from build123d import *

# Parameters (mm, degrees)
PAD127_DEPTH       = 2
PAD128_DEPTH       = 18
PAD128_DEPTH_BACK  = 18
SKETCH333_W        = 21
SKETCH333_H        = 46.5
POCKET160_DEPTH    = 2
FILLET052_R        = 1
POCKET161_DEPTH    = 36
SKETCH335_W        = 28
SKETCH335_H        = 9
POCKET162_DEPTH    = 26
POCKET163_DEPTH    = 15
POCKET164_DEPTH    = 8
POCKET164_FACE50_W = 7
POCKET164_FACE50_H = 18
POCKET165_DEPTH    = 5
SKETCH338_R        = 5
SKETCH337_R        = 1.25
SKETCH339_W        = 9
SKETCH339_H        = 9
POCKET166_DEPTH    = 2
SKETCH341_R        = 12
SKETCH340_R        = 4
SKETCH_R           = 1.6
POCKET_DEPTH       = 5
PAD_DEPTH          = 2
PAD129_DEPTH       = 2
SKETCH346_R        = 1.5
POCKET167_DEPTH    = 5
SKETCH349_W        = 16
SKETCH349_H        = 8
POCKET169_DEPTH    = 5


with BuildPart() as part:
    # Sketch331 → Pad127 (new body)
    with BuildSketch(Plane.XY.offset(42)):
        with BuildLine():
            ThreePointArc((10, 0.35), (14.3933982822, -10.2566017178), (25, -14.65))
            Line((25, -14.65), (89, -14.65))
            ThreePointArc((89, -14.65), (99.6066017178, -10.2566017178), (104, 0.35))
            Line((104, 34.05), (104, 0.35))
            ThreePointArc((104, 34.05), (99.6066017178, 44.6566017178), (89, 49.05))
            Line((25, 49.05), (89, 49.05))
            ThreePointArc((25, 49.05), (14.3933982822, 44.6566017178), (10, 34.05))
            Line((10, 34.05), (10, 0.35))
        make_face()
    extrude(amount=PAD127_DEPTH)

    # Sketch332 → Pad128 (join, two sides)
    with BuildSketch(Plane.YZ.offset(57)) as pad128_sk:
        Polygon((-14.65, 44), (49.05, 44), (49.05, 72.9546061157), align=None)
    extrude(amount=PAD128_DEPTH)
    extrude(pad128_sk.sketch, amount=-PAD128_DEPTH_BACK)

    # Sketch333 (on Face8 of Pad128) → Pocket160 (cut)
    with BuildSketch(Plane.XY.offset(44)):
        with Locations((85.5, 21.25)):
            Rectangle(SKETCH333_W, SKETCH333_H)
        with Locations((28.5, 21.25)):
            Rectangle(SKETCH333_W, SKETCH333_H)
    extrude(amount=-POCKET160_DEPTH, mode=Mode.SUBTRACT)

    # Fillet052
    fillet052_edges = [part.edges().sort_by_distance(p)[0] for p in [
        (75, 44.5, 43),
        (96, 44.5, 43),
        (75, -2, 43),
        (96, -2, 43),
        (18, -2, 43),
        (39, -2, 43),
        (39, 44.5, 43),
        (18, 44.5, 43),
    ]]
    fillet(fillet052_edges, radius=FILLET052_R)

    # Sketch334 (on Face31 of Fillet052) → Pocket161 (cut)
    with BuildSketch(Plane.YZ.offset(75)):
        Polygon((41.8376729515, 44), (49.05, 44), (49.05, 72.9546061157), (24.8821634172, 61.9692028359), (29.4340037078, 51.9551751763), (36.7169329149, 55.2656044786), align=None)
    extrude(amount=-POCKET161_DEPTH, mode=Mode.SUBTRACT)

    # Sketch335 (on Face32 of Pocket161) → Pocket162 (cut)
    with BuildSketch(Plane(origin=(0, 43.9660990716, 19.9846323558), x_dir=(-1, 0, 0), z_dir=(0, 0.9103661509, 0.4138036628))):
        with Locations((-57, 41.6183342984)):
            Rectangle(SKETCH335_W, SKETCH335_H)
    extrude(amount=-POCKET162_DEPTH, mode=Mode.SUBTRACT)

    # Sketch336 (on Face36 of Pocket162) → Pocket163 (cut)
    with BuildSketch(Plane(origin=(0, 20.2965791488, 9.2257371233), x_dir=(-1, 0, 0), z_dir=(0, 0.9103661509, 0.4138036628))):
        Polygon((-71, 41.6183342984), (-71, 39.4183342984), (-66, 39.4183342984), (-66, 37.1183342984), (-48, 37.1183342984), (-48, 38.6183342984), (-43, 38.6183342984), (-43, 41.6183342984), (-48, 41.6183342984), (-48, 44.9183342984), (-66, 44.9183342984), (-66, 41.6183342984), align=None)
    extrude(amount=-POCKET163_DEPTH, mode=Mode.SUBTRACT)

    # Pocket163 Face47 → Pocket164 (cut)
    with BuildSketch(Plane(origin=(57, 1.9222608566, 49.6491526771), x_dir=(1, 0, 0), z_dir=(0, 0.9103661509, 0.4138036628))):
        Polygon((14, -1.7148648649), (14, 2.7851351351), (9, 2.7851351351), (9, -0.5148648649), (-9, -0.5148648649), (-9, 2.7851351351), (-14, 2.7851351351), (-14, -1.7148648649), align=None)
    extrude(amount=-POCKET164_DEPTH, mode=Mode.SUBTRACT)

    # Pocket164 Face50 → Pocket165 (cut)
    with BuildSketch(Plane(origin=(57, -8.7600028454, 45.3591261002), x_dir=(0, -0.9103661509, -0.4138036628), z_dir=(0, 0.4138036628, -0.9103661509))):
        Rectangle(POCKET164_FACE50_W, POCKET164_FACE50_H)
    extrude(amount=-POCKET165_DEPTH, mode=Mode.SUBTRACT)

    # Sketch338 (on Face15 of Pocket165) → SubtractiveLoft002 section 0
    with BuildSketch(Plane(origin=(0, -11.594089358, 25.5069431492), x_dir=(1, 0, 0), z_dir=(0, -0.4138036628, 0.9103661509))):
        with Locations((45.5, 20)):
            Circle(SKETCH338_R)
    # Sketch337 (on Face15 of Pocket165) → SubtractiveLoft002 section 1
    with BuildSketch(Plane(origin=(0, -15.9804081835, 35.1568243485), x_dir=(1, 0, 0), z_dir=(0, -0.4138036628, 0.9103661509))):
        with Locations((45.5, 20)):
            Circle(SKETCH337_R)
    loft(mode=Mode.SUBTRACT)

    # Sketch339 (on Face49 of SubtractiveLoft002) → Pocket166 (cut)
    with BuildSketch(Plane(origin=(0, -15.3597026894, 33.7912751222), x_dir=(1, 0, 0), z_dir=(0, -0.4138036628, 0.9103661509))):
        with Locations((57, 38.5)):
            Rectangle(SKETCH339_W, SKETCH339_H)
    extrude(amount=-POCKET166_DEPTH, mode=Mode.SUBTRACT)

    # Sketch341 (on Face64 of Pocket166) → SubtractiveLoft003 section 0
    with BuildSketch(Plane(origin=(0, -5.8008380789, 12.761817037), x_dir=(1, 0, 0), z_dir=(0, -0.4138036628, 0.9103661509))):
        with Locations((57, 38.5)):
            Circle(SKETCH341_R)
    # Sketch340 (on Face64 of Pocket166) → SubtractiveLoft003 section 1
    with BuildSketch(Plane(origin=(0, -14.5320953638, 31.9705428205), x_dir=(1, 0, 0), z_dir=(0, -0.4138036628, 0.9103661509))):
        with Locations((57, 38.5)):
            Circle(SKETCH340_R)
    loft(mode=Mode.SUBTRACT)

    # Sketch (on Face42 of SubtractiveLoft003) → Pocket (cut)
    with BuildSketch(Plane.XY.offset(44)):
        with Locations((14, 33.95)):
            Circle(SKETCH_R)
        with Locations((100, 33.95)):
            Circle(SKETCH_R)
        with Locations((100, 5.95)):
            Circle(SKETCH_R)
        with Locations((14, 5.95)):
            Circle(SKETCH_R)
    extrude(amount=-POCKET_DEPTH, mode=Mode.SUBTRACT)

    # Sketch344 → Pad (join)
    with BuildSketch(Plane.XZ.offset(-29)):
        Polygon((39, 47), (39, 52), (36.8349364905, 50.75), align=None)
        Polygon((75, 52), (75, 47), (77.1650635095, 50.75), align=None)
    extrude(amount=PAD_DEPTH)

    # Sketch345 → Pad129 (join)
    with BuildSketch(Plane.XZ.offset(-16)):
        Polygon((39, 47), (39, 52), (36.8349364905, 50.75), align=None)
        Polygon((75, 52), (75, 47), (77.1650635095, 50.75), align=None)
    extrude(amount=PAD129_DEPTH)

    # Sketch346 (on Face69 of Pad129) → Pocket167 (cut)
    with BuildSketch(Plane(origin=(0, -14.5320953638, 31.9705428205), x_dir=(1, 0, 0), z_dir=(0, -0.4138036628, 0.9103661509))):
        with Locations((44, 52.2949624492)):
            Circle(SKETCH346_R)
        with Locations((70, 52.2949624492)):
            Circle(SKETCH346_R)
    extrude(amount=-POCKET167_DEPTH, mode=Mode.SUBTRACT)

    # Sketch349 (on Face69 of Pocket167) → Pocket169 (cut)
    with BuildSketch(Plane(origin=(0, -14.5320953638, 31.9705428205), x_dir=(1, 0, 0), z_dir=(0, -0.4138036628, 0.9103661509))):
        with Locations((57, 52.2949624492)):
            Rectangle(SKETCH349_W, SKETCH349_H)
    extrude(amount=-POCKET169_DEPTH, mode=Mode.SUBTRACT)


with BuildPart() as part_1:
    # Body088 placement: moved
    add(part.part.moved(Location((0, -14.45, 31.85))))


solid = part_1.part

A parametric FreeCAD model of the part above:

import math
import FreeCAD as App
import Part
import Sketcher

V = App.Vector
Q = App.Units.Quantity


def edges_at(feature, points):
    """Names of the edges that pass closest to the given points."""
    edges = feature.Shape.Edges
    near = lambda p: min(range(len(edges)), key=lambda i: edges[i].distToShape(Part.Vertex(*p))[0])
    return sorted({f"Edge{near(p) + 1}" for p in points})

doc = App.newDocument("Part")
params = doc.addObject("Spreadsheet::Sheet", "Params")
for row, (alias, value) in enumerate([
    ("sketch1_radius", "15 mm"),
    ("sketch1_width", "64 mm"),
    ("sketch1_height", "33.7 mm"),
    ("pad1_length", "2 mm"),
    ("sketch2_width", "63.7 mm"),
    ("pad2_length", "18 mm"),
    ("pad2_length2", "18 mm"),
    ("sketch3_width", "21 mm"),
    ("sketch3_height", "46.5 mm"),
    ("pocket1_length", "2 mm"),
    ("fillet_radius", "1 mm"),
    ("sketch4_length", "11 mm"),
    ("sketch4_length2", "8 mm"),
    ("pocket2_length", "36 mm"),
    ("sketch5_width", "28 mm"),
    ("sketch5_height", "9 mm"),
    ("pocket3_length", "26 mm"),
    ("sketch6_width", "5 mm"),
    ("sketch6_width2", "18 mm"),
    ("sketch6_height", "3 mm"),
    ("sketch6_height2", "2.2 mm"),
    ("sketch6_height3", "2.3 mm"),
    ("pocket4_length", "15 mm"),
    ("sketch7_width", "5 mm"),
    ("sketch7_width2", "18 mm"),
    ("sketch7_height", "4.5 mm"),
    ("sketch7_height2", "3.3 mm"),
    ("pocket5_length", "8 mm"),
    ("sketch8_width", "7 mm"),
    ("sketch8_height", "18 mm"),
    ("pocket6_length", "5 mm"),
    ("sketch9_diameter", "10 mm"),
    ("sketch10_diameter", "2.5 mm"),
    ("sketch11_width", "9 mm"),
    ("pocket7_length", "2 mm"),
    ("sketch12_diameter", "24 mm"),
    ("sketch13_diameter", "8 mm"),
    ("sketch14_diameter", "3.2 mm"),
    ("pocket8_length", "5 mm"),
    ("sketch15_height", "5 mm"),
    ("pad3_length", "2 mm"),
    ("sketch16_height", "5 mm"),
    ("pad4_length", "2 mm"),
    ("sketch17_diameter", "3 mm"),
    ("pocket9_length", "5 mm"),
    ("sketch18_width", "16 mm"),
    ("sketch18_height", "8 mm"),
    ("pocket10_length", "5 mm"),
], start=1):
    params.set(f"A{row}", alias)
    params.set(f"B{row}", "=" + value)
    params.setAlias(f"B{row}", alias)

body = doc.addObject("PartDesign::Body", "Body")

sketch1 = body.newObject("Sketcher::SketchObject", "Sketch")
sketch1.AttachmentSupport = (doc.getObject("XY_Plane"), [""])
sketch1.MapMode = "FlatFace"
sketch1.AttachmentOffset = App.Placement(V(0, 0, 42), App.Rotation())
sketch1.addGeometry([
    Part.ArcOfCircle(Part.Circle(V(25, 0, 0), V(0, 0, 1), 15), math.radians(180), math.radians(270)),
    Part.LineSegment(V(25, -15, 0), V(89, -15, 0)),
    Part.ArcOfCircle(Part.Circle(V(89, 0, 0), V(0, 0, 1), 15), math.radians(-90), math.radians(0)),
    Part.LineSegment(V(104, 0, 0), V(104, 34, 0)),
    Part.ArcOfCircle(Part.Circle(V(89, 34, 0), V(0, 0, 1), 15), math.radians(0), math.radians(90)),
    Part.LineSegment(V(89, 49, 0), V(25, 49, 0)),
    Part.ArcOfCircle(Part.Circle(V(25, 34, 0), V(0, 0, 1), 15), math.radians(90), math.radians(180)),
    Part.LineSegment(V(10, 34, 0), V(10, 0, 0)),
], False)
sketch1.addConstraint([
    Sketcher.Constraint("Tangent", 0, 2, 1, 1),
    Sketcher.Constraint("Tangent", 1, 2, 2, 1),
    Sketcher.Constraint("Tangent", 2, 2, 3, 1),
    Sketcher.Constraint("Tangent", 3, 2, 4, 1),
    Sketcher.Constraint("Tangent", 4, 2, 5, 1),
    Sketcher.Constraint("Tangent", 5, 2, 6, 1),
    Sketcher.Constraint("Tangent", 6, 2, 7, 1),
    Sketcher.Constraint("Tangent", 7, 2, 0, 1),
    Sketcher.Constraint("Horizontal", 1),
    Sketcher.Constraint("Vertical", 3),
    Sketcher.Constraint("Horizontal", 5),
    Sketcher.Constraint("Vertical", 7),
    Sketcher.Constraint("Equal", 0, 2),
    Sketcher.Constraint("Equal", 2, 4),
    Sketcher.Constraint("Equal", 4, 6),
    Sketcher.Constraint("Radius", 0, 15.0),
    Sketcher.Constraint("DistanceX", 1, 1, 1, 2, 64.0),
    Sketcher.Constraint("DistanceY", 3, 1, 3, 2, 33.7),
    Sketcher.Constraint("DistanceX", -1, 1, 0, 3, 25.0),
    Sketcher.Constraint("DistanceY", -1, 1, 0, 3, 0.35),
])
sketch1.setExpression("Constraints[15]", "Params.sketch1_radius")
sketch1.setExpression("Constraints[16]", "Params.sketch1_width")
sketch1.setExpression("Constraints[17]", "Params.sketch1_height")
pad1 = body.newObject("PartDesign::Pad", "Pad")
pad1.Profile = sketch1
pad1.setExpression("Length", "Params.pad1_length")

sketch2 = body.newObject("Sketcher::SketchObject", "Sketch001")
sketch2.AttachmentSupport = (doc.getObject("YZ_Plane"), [""])
sketch2.MapMode = "FlatFace"
sketch2.AttachmentOffset = App.Placement(V(0, 0, 57), App.Rotation())
sketch2.addGeometry([
    Part.LineSegment(V(-15, 44, 0), V(49, 44, 0)),
    Part.LineSegment(V(49, 44, 0), V(49, 73, 0)),
    Part.LineSegment(V(49, 73, 0), V(-15, 44, 0)),
], False)
sketch2.addConstraint([
    Sketcher.Constraint("Coincident", 0, 2, 1, 1),
    Sketcher.Constraint("Coincident", 1, 2, 2, 1),
    Sketcher.Constraint("Coincident", 2, 2, 0, 1),
    Sketcher.Constraint("Horizontal", 0),
    Sketcher.Constraint("Vertical", 1),
    Sketcher.Constraint("DistanceX", 0, 1, 0, 2, 63.7),
    Sketcher.Constraint("DistanceY", -1, 1, 0, 2, 44.0),
    Sketcher.Constraint("DistanceX", -1, 1, 0, 2, 49.05),
    Sketcher.Constraint("DistanceY", 1, 1, 1, 2, 28.954606),
])
sketch2.setExpression("Constraints[5]", "Params.sketch2_width")
pad2 = body.newObject("PartDesign::Pad", "Pad001")
pad2.Profile = sketch2
pad2.Type = "TwoLengths"
pad2.setExpression("Length", "Params.pad2_length")
pad2.setExpression("Length2", "Params.pad2_length2")

sketch3 = body.newObject("Sketcher::SketchObject", "Sketch002")
sketch3.AttachmentSupport = (doc.getObject("XY_Plane"), [""])
sketch3.MapMode = "FlatFace"
sketch3.AttachmentOffset = App.Placement(V(0, 0, 44), App.Rotation())
sketch3.addGeometry([
    Part.LineSegment(V(75, 44, 0), V(75, -2, 0)),
    Part.LineSegment(V(75, -2, 0), V(96, -2, 0)),
    Part.LineSegment(V(96, -2, 0), V(96, 44, 0)),
    Part.LineSegment(V(96, 44, 0), V(75, 44, 0)),
    Part.LineSegment(V(18, 44, 0), V(18, -2, 0)),
    Part.LineSegment(V(18, -2, 0), V(39, -2, 0)),
    Part.LineSegment(V(39, -2, 0), V(39, 44, 0)),
    Part.LineSegment(V(39, 44, 0), V(18, 44, 0)),
], False)
sketch3.addConstraint([
    Sketcher.Constraint("Coincident", 0, 2, 1, 1),
    Sketcher.Constraint("Coincident", 1, 2, 2, 1),
    Sketcher.Constraint("Coincident", 2, 2, 3, 1),
    Sketcher.Constraint("Coincident", 3, 2, 0, 1),
    Sketcher.Constraint("Coincident", 4, 2, 5, 1),
    Sketcher.Constraint("Coincident", 5, 2, 6, 1),
    Sketcher.Constraint("Coincident", 6, 2, 7, 1),
    Sketcher.Constraint("Coincident", 7, 2, 4, 1),
    Sketcher.Constraint("Vertical", 0),
    Sketcher.Constraint("Horizontal", 1),
    Sketcher.Constraint("Vertical", 2),
    Sketcher.Constraint("Horizontal", 3),
    Sketcher.Constraint("Vertical", 4),
    Sketcher.Constraint("Horizontal", 5),
    Sketcher.Constraint("Vertical", 6),
    Sketcher.Constraint("Horizontal", 7),
    Sketcher.Constraint("Horizontal", 1, 2, 4, 2),
    Sketcher.Constraint("Horizontal", 3, 2, 6, 2),
    Sketcher.Constraint("Equal", 3, 5),
    Sketcher.Constraint("DistanceX", 1, 1, 1, 2, 21.0),
    Sketcher.Constraint("DistanceY", 0, 2, 0, 1, 46.5),
    Sketcher.Constraint("DistanceX", -1, 1, 0, 2, 75.0),
    Sketcher.Constraint("DistanceY", 0, 2, -1, 1, 2.0),
    Sketcher.Constraint("DistanceX", -1, 1, 4, 2, 18.0),
])
sketch3.setExpression("Constraints[19]", "Params.sketch3_width")
sketch3.setExpression("Constraints[20]", "Params.sketch3_height")
pocket1 = body.newObject("PartDesign::Pocket", "Pocket")
pocket1.Profile = sketch3
pocket1.setExpression("Length", "Params.pocket1_length")
doc.recompute()

fillet = body.newObject("PartDesign::Fillet", "Fillet")
fillet.Base = (pocket1, edges_at(pocket1, [
    (75, 44.5, 43),
    (96, 44.5, 43),
    (75, -2, 43),
    (96, -2, 43),
    (18, -2, 43),
    (39, -2, 43),
    (39, 44.5, 43),
    (18, 44.5, 43),
]))
fillet.setExpression("Radius", "Params.fillet_radius")

sketch4 = body.newObject("Sketcher::SketchObject", "Sketch003")
sketch4.AttachmentSupport = (doc.getObject("YZ_Plane"), [""])
sketch4.MapMode = "FlatFace"
sketch4.AttachmentOffset = App.Placement(V(0, 0, 75), App.Rotation())
sketch4.addGeometry([
    Part.LineSegment(V(42, 44, 0), V(49, 44, 0)),
    Part.LineSegment(V(49, 44, 0), V(49, 73, 0)),
    Part.LineSegment(V(49, 73, 0), V(25, 62, 0)),
    Part.LineSegment(V(25, 62, 0), V(29, 52, 0)),
    Part.LineSegment(V(29, 52, 0), V(37, 55, 0)),
    Part.LineSegment(V(37, 55, 0), V(42, 44, 0)),
], False)
sketch4.addConstraint([
    Sketcher.Constraint("Coincident", 0, 2, 1, 1),
    Sketcher.Constraint("Coincident", 1, 2, 2, 1),
    Sketcher.Constraint("Coincident", 2, 2, 3, 1),
    Sketcher.Constraint("Coincident", 3, 2, 4, 1),
    Sketcher.Constraint("Coincident", 4, 2, 5, 1),
    Sketcher.Constraint("Coincident", 5, 2, 0, 1),
    Sketcher.Constraint("Horizontal", 0),
    Sketcher.Constraint("Vertical", 1),
    Sketcher.Constraint("Perpendicular", 2, 3),
    Sketcher.Constraint("Perpendicular", 3, 4),
    Sketcher.Constraint("Perpendicular", 4, 5),
    Sketcher.Constraint("Distance", 3, 11.0),
    Sketcher.Constraint("Distance", 4, 8.0),
    Sketcher.Constraint("DistanceY", -1, 1, 0, 2, 44.0),
    Sketcher.Constraint("DistanceX", -1, 1, 0, 2, 49.05),
    Sketcher.Constraint("DistanceY", 4, 2, 1, 2, 17.689002),
    Sketcher.Constraint("DistanceY", 4, 2, 2, 2, 6.703598),
    Sketcher.Constraint("DistanceX", 0, 1, 0, 2, 7.212327),
])
sketch4.setExpression("Constraints[11]", "Params.sketch4_length")
sketch4.setExpression("Constraints[12]", "Params.sketch4_length2")
pocket2 = body.newObject("PartDesign::Pocket", "Pocket001")
pocket2.Profile = sketch4
pocket2.setExpression("Length", "Params.pocket2_length")

sketch5 = body.newObject("Sketcher::SketchObject", "Sketch004")
sketch5.Placement = App.Placement(V(0, 43.966099, 19.984632), App.Rotation(V(-1, 0, 0), V(0, -0.413803663, 0.910366151), V(0, 0.910366151, 0.413803663), "ZXY"))
sketch5.addGeometry([
    Part.LineSegment(V(-71, 46, 0), V(-71, 37, 0)),
    Part.LineSegment(V(-71, 37, 0), V(-43, 37, 0)),
    Part.LineSegment(V(-43, 37, 0), V(-43, 46, 0)),
    Part.LineSegment(V(-43, 46, 0), V(-71, 46, 0)),
], False)
sketch5.addConstraint([
    Sketcher.Constraint("Coincident", 0, 2, 1, 1),
    Sketcher.Constraint("Coincident", 1, 2, 2, 1),
    Sketcher.Constraint("Coincident", 2, 2, 3, 1),
    Sketcher.Constraint("Coincident", 3, 2, 0, 1),
    Sketcher.Constraint("Vertical", 0),
    Sketcher.Constraint("Horizontal", 1),
    Sketcher.Constraint("Vertical", 2),
    Sketcher.Constraint("Horizontal", 3),
    Sketcher.Constraint("DistanceX", 1, 1, 1, 2, 28.0),
    Sketcher.Constraint("DistanceY", 0, 2, 0, 1, 9.0),
    Sketcher.Constraint("DistanceX", 0, 2, -1, 1, 71.0),
    Sketcher.Constraint("DistanceY", -1, 1, 0, 2, 37.118334),
])
sketch5.setExpression("Constraints[8]", "Params.sketch5_width")
sketch5.setExpression("Constraints[9]", "Params.sketch5_height")
pocket3 = body.newObject("PartDesign::Pocket", "Pocket002")
pocket3.Profile = sketch5
pocket3.setExpression("Length", "Params.pocket3_length")

sketch6 = body.newObject("Sketcher::SketchObject", "Sketch005")
sketch6.Placement = App.Placement(V(0, 20.296579, 9.225737), App.Rotation(V(-1, 0, 0), V(0, -0.413803663, 0.910366151), V(0, 0.910366151, 0.413803663), "ZXY"))
sketch6.addGeometry([
    Part.LineSegment(V(-71, 41.6, 0), V(-71, 39.4, 0)),
    Part.LineSegment(V(-71, 39.4, 0), V(-66, 39.4, 0)),
    Part.LineSegment(V(-66, 39.4, 0), V(-66, 37.1, 0)),
    Part.LineSegment(V(-66, 37.1, 0), V(-48, 37.1, 0)),
    Part.LineSegment(V(-48, 37.1, 0), V(-48, 38.6, 0)),
    Part.LineSegment(V(-48, 38.6, 0), V(-43, 38.6, 0)),
    Part.LineSegment(V(-43, 38.6, 0), V(-43, 41.6, 0)),
    Part.LineSegment(V(-43, 41.6, 0), V(-48, 41.6, 0)),
    Part.LineSegment(V(-48, 41.6, 0), V(-48, 44.9, 0)),
    Part.LineSegment(V(-48, 44.9, 0), V(-66, 44.9, 0)),
    Part.LineSegment(V(-66, 44.9, 0), V(-66, 41.6, 0)),
    Part.LineSegment(V(-66, 41.6, 0), V(-71, 41.6, 0)),
], False)
sketch6.addConstraint([
    Sketcher.Constraint("Coincident", 0, 2, 1, 1),
    Sketcher.Constraint("Coincident", 1, 2, 2, 1),
    Sketcher.Constraint("Coincident", 2, 2, 3, 1),
    Sketcher.Constraint("Coincident", 3, 2, 4, 1),
    Sketcher.Constraint("Coincident", 4, 2, 5, 1),
    Sketcher.Constraint("Coincident", 5, 2, 6, 1),
    Sketcher.Constraint("Coincident", 6, 2, 7, 1),
    Sketcher.Constraint("Coincident", 7, 2, 8, 1),
    Sketcher.Constraint("Coincident", 8, 2, 9, 1),
    Sketcher.Constraint("Coincident", 9, 2, 10, 1),
    Sketcher.Constraint("Coincident", 10, 2, 11, 1),
    Sketcher.Constraint("Coincident", 11, 2, 0, 1),
    Sketcher.Constraint("Vertical", 0),
    Sketcher.Constraint("Horizontal", 1),
    Sketcher.Constraint("Vertical", 2),
    Sketcher.Constraint("Horizontal", 3),
    Sketcher.Constraint("Vertical", 4),
    Sketcher.Constraint("Horizontal", 5),
    Sketcher.Constraint("Vertical", 6),
    Sketcher.Constraint("Horizontal", 7),
    Sketcher.Constraint("Vertical", 8),
    Sketcher.Constraint("Horizontal", 9),
    Sketcher.Constraint("Vertical", 10),
    Sketcher.Constraint("Horizontal", 11),
    Sketcher.Constraint("Horizontal", 7, 2, 10, 2),
    Sketcher.Constraint("Vertical", 4, 2, 7, 2),
    Sketcher.Constraint("Vertical", 2, 2, 9, 2),
    Sketcher.Constraint("Equal", 1, 5),
    Sketcher.Constraint("DistanceX", 1, 1, 1, 2, 5.0),
    Sketcher.Constraint("DistanceX", 3, 1, 3, 2, 18.0),
    Sketcher.Constraint("DistanceY", 6, 1, 6, 2, 3.0),
    Sketcher.Constraint("DistanceY", 0, 2, 0, 1, 2.2),
    Sketcher.Constraint("DistanceY", 2, 2, 2, 1, 2.3),
    Sketcher.Constraint("DistanceY", 8, 1, 8, 2, 3.3),
    Sketcher.Constraint("DistanceX", 0, 2, -1, 1, 71.0),
    Sketcher.Constraint("DistanceY", -1, 1, 0, 2, 39.418334),
])
sketch6.setExpression("Constraints[28]", "Params.sketch6_width")
sketch6.setExpression("Constraints[29]", "Params.sketch6_width2")
sketch6.setExpression("Constraints[30]", "Params.sketch6_height")
sketch6.setExpression("Constraints[31]", "Params.sketch6_height2")
sketch6.setExpression("Constraints[32]", "Params.sketch6_height3")
pocket4 = body.newObject("PartDesign::Pocket", "Pocket003")
pocket4.Profile = sketch6
pocket4.setExpression("Length", "Params.pocket4_length")

sketch7 = body.newObject("Sketcher::SketchObject", "Sketch006")
sketch7.Placement = App.Placement(V(57, 1.922261, 49.649153), App.Rotation(V(1, 0, 0), V(0, 0.413803663, -0.910366151), V(0, 0.910366151, 0.413803663), "ZXY"))
sketch7.addGeometry([
    Part.LineSegment(V(14, -1.7, 0), V(14, 2.8, 0)),
    Part.LineSegment(V(14, 2.8, 0), V(9, 2.8, 0)),
    Part.LineSegment(V(9, 2.8, 0), V(9, -0.5, 0)),
    Part.LineSegment(V(9, -0.5, 0), V(-9, -0.5, 0)),
    Part.LineSegment(V(-9, -0.5, 0), V(-9, 2.8, 0)),
    Part.LineSegment(V(-9, 2.8, 0), V(-14, 2.8, 0)),
    Part.LineSegment(V(-14, 2.8, 0), V(-14, -1.7, 0)),
    Part.LineSegment(V(-14, -1.7, 0), V(14, -1.7, 0)),
], False)
sketch7.addConstraint([
    Sketcher.Constraint("Coincident", 0, 2, 1, 1),
    Sketcher.Constraint("Coincident", 1, 2, 2, 1),
    Sketcher.Constraint("Coincident", 2, 2, 3, 1),
    Sketcher.Constraint("Coincident", 3, 2, 4, 1),
    Sketcher.Constraint("Coincident", 4, 2, 5, 1),
    Sketcher.Constraint("Coincident", 5, 2, 6, 1),
    Sketcher.Constraint("Coincident", 6, 2, 7, 1),
    Sketcher.Constraint("Coincident", 7, 2, 0, 1),
    Sketcher.Constraint("Vertical", 0),
    Sketcher.Constraint("Horizontal", 1),
    Sketcher.Constraint("Vertical", 2),
    Sketcher.Constraint("Horizontal", 3),
    Sketcher.Constraint("Vertical", 4),
    Sketcher.Constraint("Horizontal", 5),
    Sketcher.Constraint("Vertical", 6),
    Sketcher.Constraint("Horizontal", 7),
    Sketcher.Constraint("Symmetric", 1, 2, 4, 2, -2),
    Sketcher.Constraint("Equal", 1, 5),
    Sketcher.Constraint("DistanceX", 1, 2, 1, 1, 5.0),
    Sketcher.Constraint("DistanceX", 3, 2, 3, 1, 18.0),
    Sketcher.Constraint("DistanceY", 0, 1, 0, 2, 4.5),
    Sketcher.Constraint("DistanceY", 2, 2, 2, 1, 3.3),
    Sketcher.Constraint("DistanceY", -1, 1, 0, 2, 2.785135),
])
sketch7.setExpression("Constraints[18]", "Params.sketch7_width")
sketch7.setExpression("Constraints[19]", "Params.sketch7_width2")
sketch7.setExpression("Constraints[20]", "Params.sketch7_height")
sketch7.setExpression("Constraints[21]", "Params.sketch7_height2")
pocket5 = body.newObject("PartDesign::Pocket", "Pocket004")
pocket5.Profile = sketch7
pocket5.setExpression("Length", "Params.pocket5_length")

sketch8 = body.newObject("Sketcher::SketchObject", "Sketch007")
sketch8.Placement = App.Placement(V(57, -8.760003, 45.359126), App.Rotation(V(0, -0.910366151, -0.413803663), V(-1, 0, 0), V(0, 0.413803663, -0.910366151), "ZXY"))
sketch8.addGeometry([
    Part.LineSegment(V(-4, 9, 0), V(-4, -9, 0)),
    Part.LineSegment(V(-4, -9, 0), V(4, -9, 0)),
    Part.LineSegment(V(4, -9, 0), V(4, 9, 0)),
    Part.LineSegment(V(4, 9, 0), V(-4, 9, 0)),
], False)
sketch8.addConstraint([
    Sketcher.Constraint("Coincident", 0, 2, 1, 1),
    Sketcher.Constraint("Coincident", 1, 2, 2, 1),
    Sketcher.Constraint("Coincident", 2, 2, 3, 1),
    Sketcher.Constraint("Coincident", 3, 2, 0, 1),
    Sketcher.Constraint("Vertical", 0),
    Sketcher.Constraint("Horizontal", 1),
    Sketcher.Constraint("Vertical", 2),
    Sketcher.Constraint("Horizontal", 3),
    Sketcher.Constraint("Symmetric", 0, 2, 2, 2, -1, 1),
    Sketcher.Constraint("DistanceX", 1, 1, 1, 2, 7.0),
    Sketcher.Constraint("DistanceY", 0, 2, 0, 1, 18.0),
])
sketch8.setExpression("Constraints[9]", "Params.sketch8_width")
sketch8.setExpression("Constraints[10]", "Params.sketch8_height")
pocket6 = body.newObject("PartDesign::Pocket", "Pocket005")
pocket6.Profile = sketch8
pocket6.setExpression("Length", "Params.pocket6_length")

sketch9 = body.newObject("Sketcher::SketchObject", "Sketch008")
sketch9.Placement = App.Placement(V(0, -11.594089, 25.506943), App.Rotation(V(1, 0, 0), V(0, 0.910366151, 0.413803663), V(0, -0.413803663, 0.910366151), "ZXY"))
sketch9.addGeometry(Part.Circle(V(46, 20, 0), V(0, 0, 1), 5), False)
sketch9.addConstraint([
    Sketcher.Constraint("Diameter", 0, 10.0),
    Sketcher.Constraint("DistanceY", -1, 1, 0, 3, 20.0),
    Sketcher.Constraint("DistanceX", -1, 1, 0, 3, 45.5),
])
sketch9.setExpression("Constraints[0]", "Params.sketch9_diameter")

sketch10 = body.newObject("Sketcher::SketchObject", "Sketch009")
sketch10.Placement = App.Placement(V(0, -15.980408, 35.156824), App.Rotation(V(1, 0, 0), V(0, 0.910366151, 0.413803663), V(0, -0.413803663, 0.910366151), "ZXY"))
sketch10.addGeometry(Part.Circle(V(45.5, 20, 0), V(0, 0, 1), 1.2), False)
sketch10.addConstraint([
    Sketcher.Constraint("Diameter", 0, 2.5),
    Sketcher.Constraint("DistanceY", -1, 1, 0, 3, 20.0),
    Sketcher.Constraint("DistanceX", -1, 1, 0, 3, 45.5),
])
sketch10.setExpression("Constraints[0]", "Params.sketch10_diameter")

subtractiveloft = body.newObject("PartDesign::SubtractiveLoft", "SubtractiveLoft")
subtractiveloft.Profile = sketch9
subtractiveloft.Sections = [sketch10]

sketch11 = body.newObject("Sketcher::SketchObject", "Sketch010")
sketch11.Placement = App.Placement(V(0, -15.359703, 33.791275), App.Rotation(V(1, 0, 0), V(0, 0.910366151, 0.413803663), V(0, -0.413803663, 0.910366151), "ZXY"))
sketch11.addGeometry([
    Part.LineSegment(V(52, 43, 0), V(52, 34, 0)),
    Part.LineSegment(V(52, 34, 0), V(62, 34, 0)),
    Part.LineSegment(V(62, 34, 0), V(62, 43, 0)),
    Part.LineSegment(V(62, 43, 0), V(52, 43, 0)),
], False)
sketch11.addConstraint([
    Sketcher.Constraint("Coincident", 0, 2, 1, 1),
    Sketcher.Constraint("Coincident", 1, 2, 2, 1),
    Sketcher.Constraint("Coincident", 2, 2, 3, 1),
    Sketcher.Constraint("Coincident", 3, 2, 0, 1),
    Sketcher.Constraint("Vertical", 0),
    Sketcher.Constraint("Horizontal", 1),
    Sketcher.Constraint("Vertical", 2),
    Sketcher.Constraint("Horizontal", 3),
    Sketcher.Constraint("Equal", 3, 0),
    Sketcher.Constraint("DistanceX", 1, 1, 1, 2, 9.0),
    Sketcher.Constraint("DistanceY", -1, 1, 0, 2, 34.0),
    Sketcher.Constraint("DistanceX", -1, 1, 0, 2, 52.5),
])
sketch11.setExpression("Constraints[9]", "Params.sketch11_width")
pocket7 = body.newObject("PartDesign::Pocket", "Pocket006")
pocket7.Profile = sketch11
pocket7.setExpression("Length", "Params.pocket7_length")

sketch12 = body.newObject("Sketcher::SketchObject", "Sketch011")
sketch12.Placement = App.Placement(V(0, -5.800838, 12.761817), App.Rotation(V(1, 0, 0), V(0, 0.910366151, 0.413803663), V(0, -0.413803663, 0.910366151), "ZXY"))
sketch12.addGeometry(Part.Circle(V(57, 39, 0), V(0, 0, 1), 12), False)
sketch12.addConstraint([
    Sketcher.Constraint("Diameter", 0, 24.0),
    Sketcher.Constraint("DistanceX", -1, 1, 0, 3, 57.0),
    Sketcher.Constraint("DistanceY", -1, 1, 0, 3, 38.5),
])
sketch12.setExpression("Constraints[0]", "Params.sketch12_diameter")

sketch13 = body.newObject("Sketcher::SketchObject", "Sketch012")
sketch13.Placement = App.Placement(V(0, -14.532095, 31.970543), App.Rotation(V(1, 0, 0), V(0, 0.910366151, 0.413803663), V(0, -0.413803663, 0.910366151), "ZXY"))
sketch13.addGeometry(Part.Circle(V(57, 38.5, 0), V(0, 0, 1), 4), False)
sketch13.addConstraint([
    Sketcher.Constraint("Diameter", 0, 8.0),
    Sketcher.Constraint("DistanceX", -1, 1, 0, 3, 57.0),
    Sketcher.Constraint("DistanceY", -1, 1, 0, 3, 38.5),
])
sketch13.setExpression("Constraints[0]", "Params.sketch13_diameter")

subtractiveloft2 = body.newObject("PartDesign::SubtractiveLoft", "SubtractiveLoft001")
subtractiveloft2.Profile = sketch12
subtractiveloft2.Sections = [sketch13]

sketch14 = body.newObject("Sketcher::SketchObject", "Sketch013")
sketch14.AttachmentSupport = (doc.getObject("XY_Plane"), [""])
sketch14.MapMode = "FlatFace"
sketch14.AttachmentOffset = App.Placement(V(0, 0, 44), App.Rotation())
sketch14.addGeometry([
    Part.Circle(V(14, 34, 0), V(0, 0, 1), 1.6),
    Part.Circle(V(100, 34, 0), V(0, 0, 1), 1.6),
    Part.Circle(V(100, 6, 0), V(0, 0, 1), 1.6),
    Part.Circle(V(14, 6, 0), V(0, 0, 1), 1.6),
], False)
sketch14.addConstraint([
    Sketcher.Constraint("Equal", 0, 1),
    Sketcher.Constraint("Equal", 1, 2),
    Sketcher.Constraint("Equal", 2, 3),
    Sketcher.Constraint("Horizontal", 0, 3, 1, 3),
    Sketcher.Constraint("Horizontal", 2, 3, 3, 3),
    Sketcher.Constraint("Vertical", 1, 3, 2, 3),
    Sketcher.Constraint("Vertical", 0, 3, 3, 3),
    Sketcher.Constraint("Diameter", 0, 3.2),
    Sketcher.Constraint("DistanceX", -1, 1, 0, 3, 14.0),
    Sketcher.Constraint("DistanceX", -1, 1, 1, 3, 100.0),
    Sketcher.Constraint("DistanceY", 2, 3, 1, 3, 28.0),
    Sketcher.Constraint("DistanceY", -1, 1, 0, 3, 33.95),
])
sketch14.setExpression("Constraints[7]", "Params.sketch14_diameter")
pocket8 = body.newObject("PartDesign::Pocket", "Pocket007")
pocket8.Profile = sketch14
pocket8.setExpression("Length", "Params.pocket8_length")

sketch15 = body.newObject("Sketcher::SketchObject", "Sketch014")
sketch15.AttachmentSupport = (doc.getObject("XZ_Plane"), [""])
sketch15.MapMode = "FlatFace"
sketch15.AttachmentOffset = App.Placement(V(0, 0, -29), App.Rotation())
sketch15.addGeometry([
    Part.LineSegment(V(39, 47, 0), V(39, 52, 0)),
    Part.LineSegment(V(39, 52, 0), V(36.8, 50.8, 0)),
    Part.LineSegment(V(36.8, 50.8, 0), V(39, 47, 0)),
    Part.LineSegment(V(75, 52, 0), V(75, 47, 0)),
    Part.LineSegment(V(75, 47, 0), V(77.2, 50.8, 0)),
    Part.LineSegment(V(77.2, 50.8, 0), V(75, 52, 0)),
], False)
sketch15.addConstraint([
    Sketcher.Constraint("Coincident", 0, 2, 1, 1),
    Sketcher.Constraint("Coincident", 1, 2, 2, 1),
    Sketcher.Constraint("Coincident", 2, 2, 0, 1),
    Sketcher.Constraint("Coincident", 3, 2, 4, 1),
    Sketcher.Constraint("Coincident", 4, 2, 5, 1),
    Sketcher.Constraint("Coincident", 5, 2, 3, 1),
    Sketcher.Constraint("Vertical", 0),
    Sketcher.Constraint("Vertical", 3),
    Sketcher.Constraint("Perpendicular", 1, 2),
    Sketcher.Constraint("Perpendicular", 4, 5),
    Sketcher.Constraint("Horizontal", 2, 2, 3, 2),
    Sketcher.Constraint("Horizontal", 1, 2, 4, 2),
    Sketcher.Constraint("Horizontal", 0, 2, 5, 2),
    Sketcher.Constraint("DistanceY", 0, 1, 0, 2, 5.0),
    Sketcher.Constraint("Angle", 1, Q("-150 deg")),
    Sketcher.Constraint("DistanceX", -1, 1, 0, 2, 39.0),
    Sketcher.Constraint("DistanceY", -1, 1, 0, 2, 52.0),
    Sketcher.Constraint("DistanceX", -1, 1, 3, 2, 75.0),
])
sketch15.setExpression("Constraints[13]", "Params.sketch15_height")
pad3 = body.newObject("PartDesign::Pad", "Pad002")
pad3.Profile = sketch15
pad3.setExpression("Length", "Params.pad3_length")

sketch16 = body.newObject("Sketcher::SketchObject", "Sketch015")
sketch16.AttachmentSupport = (doc.getObject("XZ_Plane"), [""])
sketch16.MapMode = "FlatFace"
sketch16.AttachmentOffset = App.Placement(V(0, 0, -16), App.Rotation())
sketch16.addGeometry([
    Part.LineSegment(V(39, 47, 0), V(39, 52, 0)),
    Part.LineSegment(V(39, 52, 0), V(36.8, 50.8, 0)),
    Part.LineSegment(V(36.8, 50.8, 0), V(39, 47, 0)),
    Part.LineSegment(V(75, 52, 0), V(75, 47, 0)),
    Part.LineSegment(V(75, 47, 0), V(77.2, 50.8, 0)),
    Part.LineSegment(V(77.2, 50.8, 0), V(75, 52, 0)),
], False)
sketch16.addConstraint([
    Sketcher.Constraint("Coincident", 0, 2, 1, 1),
    Sketcher.Constraint("Coincident", 1, 2, 2, 1),
    Sketcher.Constraint("Coincident", 2, 2, 0, 1),
    Sketcher.Constraint("Coincident", 3, 2, 4, 1),
    Sketcher.Constraint("Coincident", 4, 2, 5, 1),
    Sketcher.Constraint("Coincident", 5, 2, 3, 1),
    Sketcher.Constraint("Vertical", 0),
    Sketcher.Constraint("Vertical", 3),
    Sketcher.Constraint("Perpendicular", 1, 2),
    Sketcher.Constraint("Perpendicular", 4, 5),
    Sketcher.Constraint("Horizontal", 2, 2, 3, 2),
    Sketcher.Constraint("Horizontal", 1, 2, 4, 2),
    Sketcher.Constraint("Horizontal", 0, 2, 5, 2),
    Sketcher.Constraint("DistanceY", 0, 1, 0, 2, 5.0),
    Sketcher.Constraint("Angle", 1, Q("-150 deg")),
    Sketcher.Constraint("DistanceX", -1, 1, 0, 2, 39.0),
    Sketcher.Constraint("DistanceY", -1, 1, 0, 2, 52.0),
    Sketcher.Constraint("DistanceX", -1, 1, 3, 2, 75.0),
])
sketch16.setExpression("Constraints[13]", "Params.sketch16_height")
pad4 = body.newObject("PartDesign::Pad", "Pad003")
pad4.Profile = sketch16
pad4.setExpression("Length", "Params.pad4_length")

sketch17 = body.newObject("Sketcher::SketchObject", "Sketch016")
sketch17.Placement = App.Placement(V(0, -14.532095, 31.970543), App.Rotation(V(1, 0, 0), V(0, 0.910366151, 0.413803663), V(0, -0.413803663, 0.910366151), "ZXY"))
sketch17.addGeometry([
    Part.Circle(V(44, 52.3, 0), V(0, 0, 1), 1.5),
    Part.Circle(V(70, 52.3, 0), V(0, 0, 1), 1.5),
], False)
sketch17.addConstraint([
    Sketcher.Constraint("Equal", 0, 1),
    Sketcher.Constraint("Horizontal", 0, 3, 1, 3),
    Sketcher.Constraint("Diameter", 0, 3.0),
    Sketcher.Constraint("DistanceX", -1, 1, 0, 3, 44.0),
    Sketcher.Constraint("DistanceX", -1, 1, 1, 3, 70.0),
    Sketcher.Constraint("DistanceY", -1, 1, 0, 3, 52.294962),
])
sketch17.setExpression("Constraints[2]", "Params.sketch17_diameter")
pocket9 = body.newObject("PartDesign::Pocket", "Pocket008")
pocket9.Profile = sketch17
pocket9.setExpression("Length", "Params.pocket9_length")

sketch18 = body.newObject("Sketcher::SketchObject", "Sketch017")
sketch18.Placement = App.Placement(V(0, -14.532095, 31.970543), App.Rotation(V(1, 0, 0), V(0, 0.910366151, 0.413803663), V(0, -0.413803663, 0.910366151), "ZXY"))
sketch18.addGeometry([
    Part.LineSegment(V(49, 56, 0), V(49, 48, 0)),
    Part.LineSegment(V(49, 48, 0), V(65, 48, 0)),
    Part.LineSegment(V(65, 48, 0), V(65, 56, 0)),
    Part.LineSegment(V(65, 56, 0), V(49, 56, 0)),
], False)
sketch18.addConstraint([
    Sketcher.Constraint("Coincident", 0, 2, 1, 1),
    Sketcher.Constraint("Coincident", 1, 2, 2, 1),
    Sketcher.Constraint("Coincident", 2, 2, 3, 1),
    Sketcher.Constraint("Coincident", 3, 2, 0, 1),
    Sketcher.Constraint("Vertical", 0),
    Sketcher.Constraint("Horizontal", 1),
    Sketcher.Constraint("Vertical", 2),
    Sketcher.Constraint("Horizontal", 3),
    Sketcher.Constraint("DistanceX", 1, 1, 1, 2, 16.0),
    Sketcher.Constraint("DistanceY", 0, 2, 0, 1, 8.0),
    Sketcher.Constraint("DistanceX", -1, 1, 0, 2, 49.0),
    Sketcher.Constraint("DistanceY", -1, 1, 0, 2, 48.294962),
])
sketch18.setExpression("Constraints[8]", "Params.sketch18_width")
sketch18.setExpression("Constraints[9]", "Params.sketch18_height")
pocket10 = body.newObject("PartDesign::Pocket", "Pocket009")
pocket10.Profile = sketch18
pocket10.setExpression("Length", "Params.pocket10_length")
body2 = doc.addObject("PartDesign::Body", "Body001")
doc.recompute()

body.Placement = App.Placement(V(0, -14.45, 31.85), App.Rotation(V(0, 0, 1), 0))
boolean = body2.newObject("PartDesign::Boolean", "Boolean")
boolean.Type = "Fuse"
boolean.addObjects([body])

doc.recompute()
